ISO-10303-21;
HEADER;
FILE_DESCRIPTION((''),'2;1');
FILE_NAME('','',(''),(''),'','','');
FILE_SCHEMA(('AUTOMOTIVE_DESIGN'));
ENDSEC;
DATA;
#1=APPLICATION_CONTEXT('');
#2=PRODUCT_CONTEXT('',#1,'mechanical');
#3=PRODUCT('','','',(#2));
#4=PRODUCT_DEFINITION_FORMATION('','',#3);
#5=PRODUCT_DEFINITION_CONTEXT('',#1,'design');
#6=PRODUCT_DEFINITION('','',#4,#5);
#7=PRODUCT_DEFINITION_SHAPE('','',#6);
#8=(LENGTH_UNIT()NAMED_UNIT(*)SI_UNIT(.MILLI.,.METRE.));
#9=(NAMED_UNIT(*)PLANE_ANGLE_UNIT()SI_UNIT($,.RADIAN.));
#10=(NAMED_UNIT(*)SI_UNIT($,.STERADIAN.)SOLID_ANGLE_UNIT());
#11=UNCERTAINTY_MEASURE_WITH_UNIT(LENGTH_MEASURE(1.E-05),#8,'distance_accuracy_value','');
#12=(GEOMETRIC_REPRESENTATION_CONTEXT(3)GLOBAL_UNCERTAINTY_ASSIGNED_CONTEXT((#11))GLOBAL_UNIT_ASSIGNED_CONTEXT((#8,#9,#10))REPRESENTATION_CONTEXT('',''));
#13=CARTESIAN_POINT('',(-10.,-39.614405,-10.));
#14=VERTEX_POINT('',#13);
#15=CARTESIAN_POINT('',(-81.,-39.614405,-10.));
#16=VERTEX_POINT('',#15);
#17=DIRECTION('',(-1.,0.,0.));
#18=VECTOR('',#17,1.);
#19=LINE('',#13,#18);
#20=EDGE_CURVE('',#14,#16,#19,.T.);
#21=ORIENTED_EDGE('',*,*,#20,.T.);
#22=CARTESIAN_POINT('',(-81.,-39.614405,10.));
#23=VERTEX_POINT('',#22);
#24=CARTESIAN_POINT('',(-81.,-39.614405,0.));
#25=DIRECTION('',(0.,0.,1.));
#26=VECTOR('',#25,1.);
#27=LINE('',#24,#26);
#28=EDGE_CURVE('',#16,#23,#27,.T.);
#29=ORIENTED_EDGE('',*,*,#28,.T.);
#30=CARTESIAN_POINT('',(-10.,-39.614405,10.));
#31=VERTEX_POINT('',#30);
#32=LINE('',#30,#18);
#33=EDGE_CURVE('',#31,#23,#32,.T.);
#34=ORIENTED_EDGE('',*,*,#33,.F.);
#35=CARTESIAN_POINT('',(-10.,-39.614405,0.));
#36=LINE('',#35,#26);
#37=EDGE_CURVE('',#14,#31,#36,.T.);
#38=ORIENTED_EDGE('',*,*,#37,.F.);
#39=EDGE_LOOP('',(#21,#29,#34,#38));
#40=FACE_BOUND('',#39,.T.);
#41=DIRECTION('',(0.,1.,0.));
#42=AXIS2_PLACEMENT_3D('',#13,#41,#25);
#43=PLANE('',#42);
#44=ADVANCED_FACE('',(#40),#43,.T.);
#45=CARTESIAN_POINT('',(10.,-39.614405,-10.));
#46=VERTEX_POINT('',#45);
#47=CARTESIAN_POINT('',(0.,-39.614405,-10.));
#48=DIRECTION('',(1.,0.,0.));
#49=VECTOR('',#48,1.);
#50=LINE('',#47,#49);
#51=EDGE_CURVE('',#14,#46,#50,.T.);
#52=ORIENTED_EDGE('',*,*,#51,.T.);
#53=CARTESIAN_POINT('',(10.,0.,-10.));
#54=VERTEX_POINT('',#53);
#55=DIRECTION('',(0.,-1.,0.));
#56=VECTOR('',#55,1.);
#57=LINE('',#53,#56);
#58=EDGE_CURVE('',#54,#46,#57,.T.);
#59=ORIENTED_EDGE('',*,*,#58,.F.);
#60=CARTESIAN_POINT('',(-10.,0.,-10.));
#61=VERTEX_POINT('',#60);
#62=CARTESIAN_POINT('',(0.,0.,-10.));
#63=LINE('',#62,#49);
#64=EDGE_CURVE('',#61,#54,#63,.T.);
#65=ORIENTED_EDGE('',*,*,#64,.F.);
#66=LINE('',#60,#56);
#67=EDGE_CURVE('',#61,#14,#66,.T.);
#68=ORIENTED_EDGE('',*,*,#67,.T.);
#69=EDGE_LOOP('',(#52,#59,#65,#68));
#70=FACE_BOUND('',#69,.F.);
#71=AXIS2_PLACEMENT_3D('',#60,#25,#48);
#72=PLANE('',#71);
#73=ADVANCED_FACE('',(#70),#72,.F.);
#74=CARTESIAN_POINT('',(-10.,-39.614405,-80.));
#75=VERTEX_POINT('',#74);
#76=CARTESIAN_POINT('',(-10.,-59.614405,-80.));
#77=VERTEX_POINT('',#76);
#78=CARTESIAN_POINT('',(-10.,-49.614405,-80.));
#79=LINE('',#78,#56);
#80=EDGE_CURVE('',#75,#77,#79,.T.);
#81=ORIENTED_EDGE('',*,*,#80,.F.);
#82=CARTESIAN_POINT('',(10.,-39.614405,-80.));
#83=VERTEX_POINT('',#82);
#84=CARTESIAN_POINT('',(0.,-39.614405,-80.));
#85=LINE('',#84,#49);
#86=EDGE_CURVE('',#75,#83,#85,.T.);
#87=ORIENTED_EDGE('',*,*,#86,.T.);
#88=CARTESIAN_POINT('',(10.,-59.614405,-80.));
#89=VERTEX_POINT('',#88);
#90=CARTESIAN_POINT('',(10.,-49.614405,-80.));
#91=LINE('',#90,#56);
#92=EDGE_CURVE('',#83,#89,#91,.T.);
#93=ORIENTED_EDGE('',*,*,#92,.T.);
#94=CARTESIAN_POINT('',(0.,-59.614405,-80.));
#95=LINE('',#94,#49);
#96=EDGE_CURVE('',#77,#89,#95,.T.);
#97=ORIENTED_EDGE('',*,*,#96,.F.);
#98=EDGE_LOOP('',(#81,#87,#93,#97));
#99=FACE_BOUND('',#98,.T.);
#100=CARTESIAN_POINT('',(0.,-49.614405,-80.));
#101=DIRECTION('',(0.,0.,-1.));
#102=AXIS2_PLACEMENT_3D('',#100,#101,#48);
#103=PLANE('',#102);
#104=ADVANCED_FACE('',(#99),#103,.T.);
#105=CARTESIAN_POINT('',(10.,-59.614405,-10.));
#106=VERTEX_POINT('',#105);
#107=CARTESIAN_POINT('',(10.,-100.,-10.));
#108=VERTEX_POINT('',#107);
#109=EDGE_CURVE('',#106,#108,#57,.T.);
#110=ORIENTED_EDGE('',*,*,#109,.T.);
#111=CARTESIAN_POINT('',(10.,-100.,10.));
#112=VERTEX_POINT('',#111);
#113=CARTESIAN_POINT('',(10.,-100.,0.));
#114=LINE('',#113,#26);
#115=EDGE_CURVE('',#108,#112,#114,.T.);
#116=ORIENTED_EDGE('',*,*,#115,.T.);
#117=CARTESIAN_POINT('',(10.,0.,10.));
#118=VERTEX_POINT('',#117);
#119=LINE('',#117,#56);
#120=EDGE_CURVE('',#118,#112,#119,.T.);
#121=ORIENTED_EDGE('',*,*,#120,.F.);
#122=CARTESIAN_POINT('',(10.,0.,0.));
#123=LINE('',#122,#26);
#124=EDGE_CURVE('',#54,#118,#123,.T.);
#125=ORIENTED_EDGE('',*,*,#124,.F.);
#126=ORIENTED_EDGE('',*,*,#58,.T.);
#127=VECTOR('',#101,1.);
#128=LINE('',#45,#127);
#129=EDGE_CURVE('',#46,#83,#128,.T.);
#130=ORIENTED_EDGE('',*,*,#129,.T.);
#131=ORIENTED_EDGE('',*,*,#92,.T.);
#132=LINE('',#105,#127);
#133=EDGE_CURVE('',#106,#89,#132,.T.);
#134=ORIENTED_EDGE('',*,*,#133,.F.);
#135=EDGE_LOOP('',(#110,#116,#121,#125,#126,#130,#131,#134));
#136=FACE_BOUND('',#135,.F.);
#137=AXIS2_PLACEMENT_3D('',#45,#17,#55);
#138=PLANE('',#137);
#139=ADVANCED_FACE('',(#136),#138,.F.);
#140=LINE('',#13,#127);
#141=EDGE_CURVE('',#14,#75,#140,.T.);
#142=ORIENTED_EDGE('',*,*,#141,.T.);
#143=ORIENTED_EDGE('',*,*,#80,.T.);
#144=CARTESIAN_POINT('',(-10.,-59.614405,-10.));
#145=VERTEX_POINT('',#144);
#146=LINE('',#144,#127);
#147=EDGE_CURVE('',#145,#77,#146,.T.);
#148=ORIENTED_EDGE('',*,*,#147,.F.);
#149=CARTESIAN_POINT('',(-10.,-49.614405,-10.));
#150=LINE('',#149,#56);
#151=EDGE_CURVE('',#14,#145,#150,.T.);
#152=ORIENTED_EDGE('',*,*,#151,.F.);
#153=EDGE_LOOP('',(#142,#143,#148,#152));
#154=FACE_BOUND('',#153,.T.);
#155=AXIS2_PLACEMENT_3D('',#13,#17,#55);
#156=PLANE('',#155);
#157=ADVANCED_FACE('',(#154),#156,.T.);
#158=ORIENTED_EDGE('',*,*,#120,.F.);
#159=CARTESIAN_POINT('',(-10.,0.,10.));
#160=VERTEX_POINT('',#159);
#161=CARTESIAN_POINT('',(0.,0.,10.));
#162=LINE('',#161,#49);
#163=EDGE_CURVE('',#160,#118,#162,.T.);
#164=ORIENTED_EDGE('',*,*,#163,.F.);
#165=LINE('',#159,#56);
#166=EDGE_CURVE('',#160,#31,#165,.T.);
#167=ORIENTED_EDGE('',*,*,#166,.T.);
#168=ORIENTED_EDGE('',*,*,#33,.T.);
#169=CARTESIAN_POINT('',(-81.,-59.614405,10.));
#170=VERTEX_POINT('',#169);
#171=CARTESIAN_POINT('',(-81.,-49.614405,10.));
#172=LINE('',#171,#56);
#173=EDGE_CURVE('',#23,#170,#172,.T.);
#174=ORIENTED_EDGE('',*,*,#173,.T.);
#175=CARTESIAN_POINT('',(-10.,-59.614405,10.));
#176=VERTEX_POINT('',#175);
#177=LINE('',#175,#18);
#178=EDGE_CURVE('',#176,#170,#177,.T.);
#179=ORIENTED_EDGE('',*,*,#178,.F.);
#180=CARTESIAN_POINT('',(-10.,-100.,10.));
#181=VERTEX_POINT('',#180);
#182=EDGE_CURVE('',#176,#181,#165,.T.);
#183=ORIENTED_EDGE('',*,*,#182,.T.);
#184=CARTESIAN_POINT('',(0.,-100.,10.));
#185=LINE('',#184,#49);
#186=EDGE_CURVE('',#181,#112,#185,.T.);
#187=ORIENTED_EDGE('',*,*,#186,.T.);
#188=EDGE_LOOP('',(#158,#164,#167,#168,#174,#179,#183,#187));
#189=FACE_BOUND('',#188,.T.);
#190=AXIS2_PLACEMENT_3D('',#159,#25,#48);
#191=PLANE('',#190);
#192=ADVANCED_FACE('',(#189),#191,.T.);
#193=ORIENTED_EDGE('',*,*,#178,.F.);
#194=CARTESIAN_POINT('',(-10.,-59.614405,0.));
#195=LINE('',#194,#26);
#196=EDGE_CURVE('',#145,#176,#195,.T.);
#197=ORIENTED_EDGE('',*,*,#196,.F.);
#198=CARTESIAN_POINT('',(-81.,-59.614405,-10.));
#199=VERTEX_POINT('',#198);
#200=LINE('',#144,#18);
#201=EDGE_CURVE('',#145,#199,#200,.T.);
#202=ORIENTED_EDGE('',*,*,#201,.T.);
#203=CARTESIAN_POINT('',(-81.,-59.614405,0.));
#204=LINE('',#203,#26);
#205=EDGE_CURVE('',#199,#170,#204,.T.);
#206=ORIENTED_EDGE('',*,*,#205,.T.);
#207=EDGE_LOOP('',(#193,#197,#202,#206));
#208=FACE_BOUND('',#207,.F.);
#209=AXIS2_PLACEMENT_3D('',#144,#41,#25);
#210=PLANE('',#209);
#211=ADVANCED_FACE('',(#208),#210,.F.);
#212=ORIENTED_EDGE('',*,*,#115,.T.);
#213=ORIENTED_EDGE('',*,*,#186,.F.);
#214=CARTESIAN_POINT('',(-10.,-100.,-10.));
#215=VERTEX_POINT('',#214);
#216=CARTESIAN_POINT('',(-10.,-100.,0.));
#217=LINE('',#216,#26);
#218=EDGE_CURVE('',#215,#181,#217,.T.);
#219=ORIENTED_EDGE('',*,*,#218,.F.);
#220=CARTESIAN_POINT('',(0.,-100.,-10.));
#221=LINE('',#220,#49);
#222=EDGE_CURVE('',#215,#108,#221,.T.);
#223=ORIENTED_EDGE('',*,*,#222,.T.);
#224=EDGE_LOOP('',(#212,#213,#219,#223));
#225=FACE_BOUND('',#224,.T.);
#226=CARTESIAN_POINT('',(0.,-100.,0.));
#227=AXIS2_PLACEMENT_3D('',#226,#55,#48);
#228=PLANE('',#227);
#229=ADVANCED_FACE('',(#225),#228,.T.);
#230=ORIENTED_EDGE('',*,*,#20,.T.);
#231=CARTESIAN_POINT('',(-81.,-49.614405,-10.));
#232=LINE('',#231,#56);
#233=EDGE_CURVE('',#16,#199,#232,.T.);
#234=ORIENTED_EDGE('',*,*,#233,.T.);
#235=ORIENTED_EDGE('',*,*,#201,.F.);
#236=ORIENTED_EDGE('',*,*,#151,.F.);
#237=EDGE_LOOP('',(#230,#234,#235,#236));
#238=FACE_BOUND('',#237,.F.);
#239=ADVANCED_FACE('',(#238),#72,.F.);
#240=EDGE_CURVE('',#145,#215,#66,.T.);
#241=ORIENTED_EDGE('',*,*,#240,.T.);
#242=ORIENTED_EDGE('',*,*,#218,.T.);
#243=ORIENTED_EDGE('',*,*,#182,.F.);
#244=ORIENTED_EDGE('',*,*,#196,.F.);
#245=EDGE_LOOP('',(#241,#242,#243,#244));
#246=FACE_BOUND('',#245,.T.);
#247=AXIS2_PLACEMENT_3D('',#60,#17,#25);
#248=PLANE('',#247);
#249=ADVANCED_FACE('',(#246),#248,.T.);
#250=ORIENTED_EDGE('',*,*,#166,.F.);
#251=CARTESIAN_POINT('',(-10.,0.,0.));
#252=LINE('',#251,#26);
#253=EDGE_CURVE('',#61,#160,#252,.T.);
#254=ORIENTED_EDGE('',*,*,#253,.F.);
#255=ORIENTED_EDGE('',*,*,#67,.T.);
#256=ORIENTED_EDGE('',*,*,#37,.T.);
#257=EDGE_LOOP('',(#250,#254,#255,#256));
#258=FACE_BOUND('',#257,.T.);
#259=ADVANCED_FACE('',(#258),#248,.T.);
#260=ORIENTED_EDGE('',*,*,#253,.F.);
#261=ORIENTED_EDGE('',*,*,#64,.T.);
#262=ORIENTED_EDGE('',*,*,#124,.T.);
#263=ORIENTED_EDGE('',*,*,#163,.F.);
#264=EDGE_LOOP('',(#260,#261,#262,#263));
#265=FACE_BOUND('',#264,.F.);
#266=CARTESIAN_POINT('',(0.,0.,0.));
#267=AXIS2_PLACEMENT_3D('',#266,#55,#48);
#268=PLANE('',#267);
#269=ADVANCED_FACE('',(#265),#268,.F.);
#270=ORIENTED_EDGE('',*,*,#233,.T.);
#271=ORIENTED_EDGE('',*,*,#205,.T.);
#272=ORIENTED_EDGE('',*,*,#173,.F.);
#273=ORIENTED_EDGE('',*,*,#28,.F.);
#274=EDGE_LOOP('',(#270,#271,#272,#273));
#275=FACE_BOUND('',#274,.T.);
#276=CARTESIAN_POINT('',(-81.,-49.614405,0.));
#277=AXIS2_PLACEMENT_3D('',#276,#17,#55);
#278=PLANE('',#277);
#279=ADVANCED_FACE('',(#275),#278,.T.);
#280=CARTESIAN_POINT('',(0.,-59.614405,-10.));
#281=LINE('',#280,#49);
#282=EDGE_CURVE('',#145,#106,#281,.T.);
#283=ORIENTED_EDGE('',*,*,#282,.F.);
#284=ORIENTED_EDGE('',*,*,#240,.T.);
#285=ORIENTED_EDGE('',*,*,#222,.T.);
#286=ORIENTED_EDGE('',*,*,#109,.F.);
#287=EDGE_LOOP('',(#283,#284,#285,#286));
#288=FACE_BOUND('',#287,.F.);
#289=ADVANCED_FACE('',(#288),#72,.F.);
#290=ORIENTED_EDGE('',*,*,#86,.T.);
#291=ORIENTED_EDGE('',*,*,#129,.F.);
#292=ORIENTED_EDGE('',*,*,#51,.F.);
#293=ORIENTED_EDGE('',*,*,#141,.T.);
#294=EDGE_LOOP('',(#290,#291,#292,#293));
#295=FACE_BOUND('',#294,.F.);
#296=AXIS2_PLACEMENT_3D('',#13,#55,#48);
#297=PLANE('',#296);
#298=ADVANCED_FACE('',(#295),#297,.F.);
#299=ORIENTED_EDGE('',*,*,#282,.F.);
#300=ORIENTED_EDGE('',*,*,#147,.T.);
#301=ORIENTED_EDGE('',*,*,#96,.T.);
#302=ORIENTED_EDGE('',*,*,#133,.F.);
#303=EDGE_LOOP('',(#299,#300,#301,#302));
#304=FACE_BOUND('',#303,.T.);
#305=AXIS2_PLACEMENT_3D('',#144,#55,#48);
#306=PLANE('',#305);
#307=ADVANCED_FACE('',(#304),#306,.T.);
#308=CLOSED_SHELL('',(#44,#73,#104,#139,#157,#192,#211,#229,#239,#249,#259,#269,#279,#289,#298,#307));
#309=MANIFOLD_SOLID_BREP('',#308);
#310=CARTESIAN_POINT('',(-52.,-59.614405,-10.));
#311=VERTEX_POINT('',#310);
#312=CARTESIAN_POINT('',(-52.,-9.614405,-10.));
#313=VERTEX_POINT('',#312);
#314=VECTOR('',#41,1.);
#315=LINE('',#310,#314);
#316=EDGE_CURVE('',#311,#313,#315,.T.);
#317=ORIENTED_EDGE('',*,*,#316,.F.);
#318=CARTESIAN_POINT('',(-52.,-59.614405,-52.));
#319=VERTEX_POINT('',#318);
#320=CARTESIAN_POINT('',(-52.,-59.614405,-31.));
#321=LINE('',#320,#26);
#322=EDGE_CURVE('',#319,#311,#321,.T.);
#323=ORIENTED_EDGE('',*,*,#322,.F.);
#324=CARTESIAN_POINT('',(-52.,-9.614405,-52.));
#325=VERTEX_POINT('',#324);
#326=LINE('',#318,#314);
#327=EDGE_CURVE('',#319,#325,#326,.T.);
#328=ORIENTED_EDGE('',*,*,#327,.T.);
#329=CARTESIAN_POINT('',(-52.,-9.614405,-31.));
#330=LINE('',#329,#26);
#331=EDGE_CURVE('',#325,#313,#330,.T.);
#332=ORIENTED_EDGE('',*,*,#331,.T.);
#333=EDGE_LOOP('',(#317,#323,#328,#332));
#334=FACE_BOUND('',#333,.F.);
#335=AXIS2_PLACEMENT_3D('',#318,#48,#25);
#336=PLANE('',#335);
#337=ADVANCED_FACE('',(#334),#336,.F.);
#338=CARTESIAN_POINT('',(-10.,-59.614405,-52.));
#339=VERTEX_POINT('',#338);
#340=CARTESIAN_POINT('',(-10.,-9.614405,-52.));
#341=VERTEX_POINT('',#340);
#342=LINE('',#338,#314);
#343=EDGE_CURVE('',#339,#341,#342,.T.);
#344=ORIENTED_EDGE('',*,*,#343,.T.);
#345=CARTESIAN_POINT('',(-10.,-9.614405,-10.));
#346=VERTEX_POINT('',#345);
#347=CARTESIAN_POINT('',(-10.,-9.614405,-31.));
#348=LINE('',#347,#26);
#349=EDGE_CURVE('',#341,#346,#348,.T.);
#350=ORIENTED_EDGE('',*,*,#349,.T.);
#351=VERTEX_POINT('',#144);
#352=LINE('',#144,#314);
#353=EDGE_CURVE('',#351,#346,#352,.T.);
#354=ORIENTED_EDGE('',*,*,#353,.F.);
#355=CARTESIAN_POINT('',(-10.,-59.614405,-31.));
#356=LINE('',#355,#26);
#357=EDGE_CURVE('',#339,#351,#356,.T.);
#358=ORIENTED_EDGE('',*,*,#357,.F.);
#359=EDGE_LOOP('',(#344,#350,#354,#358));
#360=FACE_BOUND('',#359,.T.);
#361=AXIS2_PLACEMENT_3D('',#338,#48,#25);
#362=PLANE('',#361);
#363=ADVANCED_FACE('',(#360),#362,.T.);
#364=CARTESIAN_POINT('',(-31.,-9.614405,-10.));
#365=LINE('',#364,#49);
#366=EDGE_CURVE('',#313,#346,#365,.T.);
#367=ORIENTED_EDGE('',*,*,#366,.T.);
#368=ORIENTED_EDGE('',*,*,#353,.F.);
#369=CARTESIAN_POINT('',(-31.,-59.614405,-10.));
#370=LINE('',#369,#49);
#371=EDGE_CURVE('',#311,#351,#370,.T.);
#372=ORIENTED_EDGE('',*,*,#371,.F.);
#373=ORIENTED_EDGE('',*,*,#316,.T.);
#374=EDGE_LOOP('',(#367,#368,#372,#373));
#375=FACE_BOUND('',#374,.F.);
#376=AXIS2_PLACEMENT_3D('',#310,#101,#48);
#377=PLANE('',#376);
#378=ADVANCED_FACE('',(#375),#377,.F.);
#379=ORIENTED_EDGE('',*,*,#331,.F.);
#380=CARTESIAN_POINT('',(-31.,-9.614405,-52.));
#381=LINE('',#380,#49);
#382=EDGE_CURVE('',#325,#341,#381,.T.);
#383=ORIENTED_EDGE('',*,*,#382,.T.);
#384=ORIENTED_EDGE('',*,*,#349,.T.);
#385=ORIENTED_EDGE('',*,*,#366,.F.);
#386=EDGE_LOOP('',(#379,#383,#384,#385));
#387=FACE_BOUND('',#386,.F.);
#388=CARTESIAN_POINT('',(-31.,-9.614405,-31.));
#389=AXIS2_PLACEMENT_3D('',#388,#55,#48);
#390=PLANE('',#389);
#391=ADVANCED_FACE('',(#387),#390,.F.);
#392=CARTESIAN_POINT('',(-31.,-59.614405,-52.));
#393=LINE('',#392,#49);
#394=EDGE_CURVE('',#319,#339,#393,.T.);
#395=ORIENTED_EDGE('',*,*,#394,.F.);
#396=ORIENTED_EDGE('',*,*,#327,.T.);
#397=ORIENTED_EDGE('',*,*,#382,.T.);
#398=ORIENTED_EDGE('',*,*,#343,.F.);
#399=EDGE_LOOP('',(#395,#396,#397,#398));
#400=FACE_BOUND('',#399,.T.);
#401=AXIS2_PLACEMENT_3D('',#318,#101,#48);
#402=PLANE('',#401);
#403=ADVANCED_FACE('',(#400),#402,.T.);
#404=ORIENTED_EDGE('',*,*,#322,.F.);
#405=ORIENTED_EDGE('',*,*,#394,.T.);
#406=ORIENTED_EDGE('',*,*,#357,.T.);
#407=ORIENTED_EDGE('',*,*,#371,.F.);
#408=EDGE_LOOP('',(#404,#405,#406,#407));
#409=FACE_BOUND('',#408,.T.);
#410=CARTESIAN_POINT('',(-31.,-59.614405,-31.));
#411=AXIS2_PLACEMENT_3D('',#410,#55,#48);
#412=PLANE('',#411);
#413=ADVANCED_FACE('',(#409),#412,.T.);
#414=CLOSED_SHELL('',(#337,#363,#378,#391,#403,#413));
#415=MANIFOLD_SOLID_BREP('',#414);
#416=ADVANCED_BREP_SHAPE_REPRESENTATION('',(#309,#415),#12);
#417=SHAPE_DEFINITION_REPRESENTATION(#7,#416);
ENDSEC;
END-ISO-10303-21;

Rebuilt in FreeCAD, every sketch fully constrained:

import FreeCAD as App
import Part
import Sketcher


def add_polygon(sketch, points):
    """Adds a closed chain of lines whose ends are joined by coincident constraints."""
    first, n = sketch.GeometryCount, len(points)
    for a, b in zip(points, points[1:] + points[:1]):
        sketch.addGeometry(Part.LineSegment(App.Vector(*a, 0), App.Vector(*b, 0)), False)
    for i in range(n):
        sketch.addConstraint(Sketcher.Constraint("Coincident", first + i, 2, first + (i + 1) % n, 1))

doc = App.newDocument("Part")
body = doc.addObject("PartDesign::Body", "Body")

# Sketch on XZ plane
sketch1 = doc.addObject("Sketcher::SketchObject", "Sketch")
body.addObject(sketch1)
sketch1.AttachmentSupport = (doc.XZ_Plane, [""])
sketch1.MapMode = "FlatFace"
add_polygon(sketch1, [(-10, 10), (-10, -10), (10, -10), (10, 10)])  # lines 0-3
sketch1.addConstraint([
    Sketcher.Constraint("Vertical", 0),
    Sketcher.Constraint("Horizontal", 1),
    Sketcher.Constraint("Vertical", 2),
    Sketcher.Constraint("Horizontal", 3),
    Sketcher.Constraint("Symmetric", 0, 2, 2, 2, -1, 1),
    Sketcher.Constraint("Equal", 3, 0),
    Sketcher.Constraint("DistanceX", 1, 1, 1, 2, 20.0),
])
pad1 = doc.addObject("PartDesign::Pad", "Pad")
body.addObject(pad1)
pad1.Profile = sketch1
pad1.Length = 100

# Sketch on YZ plane
sketch2 = doc.addObject("Sketcher::SketchObject", "Sketch001")
body.addObject(sketch2)
sketch2.AttachmentSupport = (doc.YZ_Plane, [""])
sketch2.MapMode = "FlatFace"
sketch2.AttachmentOffset = App.Placement(App.Vector(0, 0, -10), App.Rotation())
add_polygon(sketch2, [(-40, 10), (-40, -10), (-60, -10), (-60, 10)])  # lines 0-3
sketch2.addConstraint([
    Sketcher.Constraint("Vertical", 0),
    Sketcher.Constraint("Horizontal", 1),
    Sketcher.Constraint("Vertical", 2),
    Sketcher.Constraint("Horizontal", 3),
    Sketcher.Constraint("Equal", 3, 0),
    Sketcher.Constraint("DistanceX", 1, 2, 1, 1, 20.0),
    Sketcher.Constraint("DistanceY", 0, 2, -1, 1, 10.0),
    Sketcher.Constraint("DistanceX", 0, 2, -1, 1, 39.614405),
])
pad2 = doc.addObject("PartDesign::Pad", "Pad001")
body.addObject(pad2)
pad2.Profile = sketch2
pad2.Length = 71
pad2.Reversed = True

# Sketch on XY plane
sketch3 = doc.addObject("Sketcher::SketchObject", "Sketch002")
body.addObject(sketch3)
sketch3.AttachmentSupport = (doc.XY_Plane, [""])
sketch3.MapMode = "FlatFace"
sketch3.AttachmentOffset = App.Placement(App.Vector(0, 0, -10), App.Rotation())
add_polygon(sketch3, [(-10, -60), (-10, -40), (10, -40), (10, -60)])  # lines 0-3
sketch3.addConstraint([
    Sketcher.Constraint("Vertical", 0),
    Sketcher.Constraint("Horizontal", 1),
    Sketcher.Constraint("Vertical", 2),
    Sketcher.Constraint("Horizontal", 3),
    Sketcher.Constraint("Equal", 3, 0),
    Sketcher.Constraint("DistanceX", 1, 1, 1, 2, 20.0),
    Sketcher.Constraint("DistanceX", 0, 2, -1, 1, 10.0),
    Sketcher.Constraint("DistanceY", 0, 2, -1, 1, 39.614405),
])
pad3 = doc.addObject("PartDesign::Pad", "Pad002")
body.addObject(pad3)
pad3.Profile = sketch3
pad3.Length = 70
pad3.Reversed = True
body2 = doc.addObject("PartDesign::Body", "Body001")

# Sketch on XZ plane
sketch4 = doc.addObject("Sketcher::SketchObject", "Sketch003")
body2.addObject(sketch4)
sketch4.AttachmentSupport = (doc.getObject("XZ_Plane001"), [""])
sketch4.MapMode = "FlatFace"
sketch4.AttachmentOffset = App.Placement(App.Vector(0, 0, 59.614405), App.Rotation())
add_polygon(sketch4, [(-52, -10), (-52, -52), (-10, -52), (-10, -10)])  # lines 0-3
sketch4.addConstraint([
    Sketcher.Constraint("Vertical", 0),
    Sketcher.Constraint("Horizontal", 1),
    Sketcher.Constraint("Vertical", 2),
    Sketcher.Constraint("Horizontal", 3),
    Sketcher.Constraint("Equal", 3, 0),
    Sketcher.Constraint("DistanceX", 1, 1, 1, 2, 42.0),
    Sketcher.Constraint("DistanceX", 0, 2, -1, 1, 52.0),
    Sketcher.Constraint("DistanceY", 0, 2, -1, 1, 52.0),
])
pad4 = doc.addObject("PartDesign::Pad", "Pad003")
body2.addObject(pad4)
pad4.Profile = sketch4
pad4.Length = 50
pad4.Reversed = True

doc.recompute()
